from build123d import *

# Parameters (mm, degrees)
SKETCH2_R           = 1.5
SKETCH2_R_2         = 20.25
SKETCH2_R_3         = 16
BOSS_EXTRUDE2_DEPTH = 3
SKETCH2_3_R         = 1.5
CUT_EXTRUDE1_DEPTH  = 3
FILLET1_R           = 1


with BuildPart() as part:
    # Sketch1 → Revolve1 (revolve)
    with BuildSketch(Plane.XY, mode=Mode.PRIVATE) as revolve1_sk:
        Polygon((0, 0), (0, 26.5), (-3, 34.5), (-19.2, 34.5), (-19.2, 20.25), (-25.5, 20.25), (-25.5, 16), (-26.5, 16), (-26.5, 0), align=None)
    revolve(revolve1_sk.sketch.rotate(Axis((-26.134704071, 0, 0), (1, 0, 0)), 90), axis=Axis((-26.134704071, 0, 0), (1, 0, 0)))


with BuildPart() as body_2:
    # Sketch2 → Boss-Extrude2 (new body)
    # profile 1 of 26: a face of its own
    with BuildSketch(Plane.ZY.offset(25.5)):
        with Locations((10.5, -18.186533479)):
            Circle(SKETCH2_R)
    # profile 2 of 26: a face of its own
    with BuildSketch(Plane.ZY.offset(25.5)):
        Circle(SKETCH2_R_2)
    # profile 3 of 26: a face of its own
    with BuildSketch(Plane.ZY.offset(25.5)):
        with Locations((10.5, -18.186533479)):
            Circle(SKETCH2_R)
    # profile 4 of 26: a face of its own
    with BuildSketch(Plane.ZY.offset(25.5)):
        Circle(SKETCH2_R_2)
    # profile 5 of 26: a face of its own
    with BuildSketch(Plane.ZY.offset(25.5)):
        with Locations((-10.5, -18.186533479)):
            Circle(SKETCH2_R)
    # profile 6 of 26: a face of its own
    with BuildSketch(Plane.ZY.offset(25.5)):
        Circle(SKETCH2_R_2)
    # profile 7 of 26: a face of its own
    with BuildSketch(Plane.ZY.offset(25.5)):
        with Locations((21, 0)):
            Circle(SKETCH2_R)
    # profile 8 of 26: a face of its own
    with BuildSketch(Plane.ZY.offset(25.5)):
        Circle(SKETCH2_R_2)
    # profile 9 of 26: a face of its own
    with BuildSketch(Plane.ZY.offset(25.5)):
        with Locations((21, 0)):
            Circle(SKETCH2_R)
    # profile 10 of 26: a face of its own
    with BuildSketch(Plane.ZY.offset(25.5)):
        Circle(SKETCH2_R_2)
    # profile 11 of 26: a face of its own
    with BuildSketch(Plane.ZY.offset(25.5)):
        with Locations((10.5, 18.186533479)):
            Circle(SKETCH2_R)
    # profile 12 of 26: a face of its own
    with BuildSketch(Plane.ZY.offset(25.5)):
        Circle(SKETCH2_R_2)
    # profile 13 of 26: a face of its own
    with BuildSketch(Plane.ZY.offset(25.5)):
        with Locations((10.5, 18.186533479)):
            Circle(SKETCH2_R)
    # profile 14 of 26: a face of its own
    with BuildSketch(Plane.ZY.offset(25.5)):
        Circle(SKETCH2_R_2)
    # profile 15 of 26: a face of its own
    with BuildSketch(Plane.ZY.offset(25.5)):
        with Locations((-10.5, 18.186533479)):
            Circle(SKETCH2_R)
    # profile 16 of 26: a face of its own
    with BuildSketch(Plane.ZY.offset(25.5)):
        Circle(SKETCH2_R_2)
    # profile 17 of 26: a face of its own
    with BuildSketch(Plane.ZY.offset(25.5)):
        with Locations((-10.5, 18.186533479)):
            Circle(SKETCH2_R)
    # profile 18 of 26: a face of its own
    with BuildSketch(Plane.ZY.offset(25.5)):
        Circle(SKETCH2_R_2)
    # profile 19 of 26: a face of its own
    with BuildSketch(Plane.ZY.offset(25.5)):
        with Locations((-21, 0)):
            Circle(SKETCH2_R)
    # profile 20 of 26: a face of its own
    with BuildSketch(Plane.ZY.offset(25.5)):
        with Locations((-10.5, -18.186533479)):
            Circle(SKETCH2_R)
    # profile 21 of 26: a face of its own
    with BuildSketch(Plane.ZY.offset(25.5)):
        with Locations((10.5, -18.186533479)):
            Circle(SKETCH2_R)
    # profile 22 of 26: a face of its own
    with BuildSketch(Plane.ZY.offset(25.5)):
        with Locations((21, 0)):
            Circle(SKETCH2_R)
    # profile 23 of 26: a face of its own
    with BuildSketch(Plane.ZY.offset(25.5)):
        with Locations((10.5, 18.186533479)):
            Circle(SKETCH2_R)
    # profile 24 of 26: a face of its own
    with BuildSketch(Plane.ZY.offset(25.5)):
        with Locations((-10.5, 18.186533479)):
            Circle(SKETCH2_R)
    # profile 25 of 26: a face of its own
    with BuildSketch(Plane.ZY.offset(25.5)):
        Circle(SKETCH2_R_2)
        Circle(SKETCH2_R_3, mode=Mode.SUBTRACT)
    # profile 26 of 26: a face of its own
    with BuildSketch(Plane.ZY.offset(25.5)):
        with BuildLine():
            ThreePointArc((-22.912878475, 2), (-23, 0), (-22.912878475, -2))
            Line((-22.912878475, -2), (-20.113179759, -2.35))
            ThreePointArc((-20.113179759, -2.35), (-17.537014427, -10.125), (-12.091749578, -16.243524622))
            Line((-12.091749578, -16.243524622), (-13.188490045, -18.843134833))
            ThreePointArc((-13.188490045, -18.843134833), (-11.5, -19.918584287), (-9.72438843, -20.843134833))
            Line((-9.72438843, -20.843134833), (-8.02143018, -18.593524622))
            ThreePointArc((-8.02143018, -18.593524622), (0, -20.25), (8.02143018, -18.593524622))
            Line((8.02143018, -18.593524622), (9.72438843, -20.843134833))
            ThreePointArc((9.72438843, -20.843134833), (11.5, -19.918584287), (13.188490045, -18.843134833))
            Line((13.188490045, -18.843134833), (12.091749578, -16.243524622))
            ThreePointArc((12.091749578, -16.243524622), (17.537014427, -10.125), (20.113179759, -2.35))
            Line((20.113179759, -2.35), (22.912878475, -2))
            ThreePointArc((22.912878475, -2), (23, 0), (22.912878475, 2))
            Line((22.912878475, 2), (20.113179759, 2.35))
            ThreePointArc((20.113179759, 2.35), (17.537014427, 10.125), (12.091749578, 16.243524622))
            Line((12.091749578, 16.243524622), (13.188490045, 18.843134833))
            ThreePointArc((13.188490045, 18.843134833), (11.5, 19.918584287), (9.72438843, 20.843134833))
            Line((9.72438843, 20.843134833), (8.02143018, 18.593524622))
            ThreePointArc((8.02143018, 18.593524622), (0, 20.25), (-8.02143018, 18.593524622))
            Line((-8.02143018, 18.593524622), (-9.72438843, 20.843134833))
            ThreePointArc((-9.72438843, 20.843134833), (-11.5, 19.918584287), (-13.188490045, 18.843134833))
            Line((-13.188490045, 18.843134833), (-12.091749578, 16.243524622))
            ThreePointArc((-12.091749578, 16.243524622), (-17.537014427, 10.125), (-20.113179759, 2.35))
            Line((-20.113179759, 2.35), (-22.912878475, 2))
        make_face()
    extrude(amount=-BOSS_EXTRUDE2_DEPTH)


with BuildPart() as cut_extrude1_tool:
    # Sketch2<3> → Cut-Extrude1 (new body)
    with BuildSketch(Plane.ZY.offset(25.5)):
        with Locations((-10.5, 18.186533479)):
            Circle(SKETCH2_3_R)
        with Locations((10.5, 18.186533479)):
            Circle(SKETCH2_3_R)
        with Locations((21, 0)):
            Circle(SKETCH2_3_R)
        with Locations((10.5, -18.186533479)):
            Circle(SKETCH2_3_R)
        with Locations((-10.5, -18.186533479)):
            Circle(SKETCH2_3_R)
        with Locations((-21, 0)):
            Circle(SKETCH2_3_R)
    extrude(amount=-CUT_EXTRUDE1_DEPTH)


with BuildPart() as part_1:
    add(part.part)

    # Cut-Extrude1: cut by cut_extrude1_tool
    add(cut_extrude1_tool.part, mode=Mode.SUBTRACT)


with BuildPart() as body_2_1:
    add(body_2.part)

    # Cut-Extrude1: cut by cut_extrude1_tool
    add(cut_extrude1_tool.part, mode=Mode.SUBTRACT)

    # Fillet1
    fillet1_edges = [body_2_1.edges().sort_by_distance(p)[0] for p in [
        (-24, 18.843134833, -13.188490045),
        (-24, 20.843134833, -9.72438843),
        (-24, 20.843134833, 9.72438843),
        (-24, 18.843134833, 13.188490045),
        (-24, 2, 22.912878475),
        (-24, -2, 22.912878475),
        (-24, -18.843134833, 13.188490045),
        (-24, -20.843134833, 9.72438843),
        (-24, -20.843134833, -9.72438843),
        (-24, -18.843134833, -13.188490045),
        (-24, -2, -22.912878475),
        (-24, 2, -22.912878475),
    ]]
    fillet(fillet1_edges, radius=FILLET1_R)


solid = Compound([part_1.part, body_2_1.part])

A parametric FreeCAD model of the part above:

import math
import FreeCAD as App
import Part
import Sketcher

V = App.Vector


def edges_at(feature, points):
    """Names of the edges that pass closest to the given points."""
    edges = feature.Shape.Edges
    near = lambda p: min(range(len(edges)), key=lambda i: edges[i].distToShape(Part.Vertex(*p))[0])
    return sorted({f"Edge{near(p) + 1}" for p in points})


def add_polygon(sketch, points):
    """Adds a closed chain of lines whose ends are joined by coincident constraints."""
    first, n = sketch.GeometryCount, len(points)
    for a, b in zip(points, points[1:] + points[:1]):
        sketch.addGeometry(Part.LineSegment(App.Vector(*a, 0), App.Vector(*b, 0)), False)
    for i in range(n):
        sketch.addConstraint(Sketcher.Constraint("Coincident", first + i, 2, first + (i + 1) % n, 1))

doc = App.newDocument("Part")
body = doc.addObject("PartDesign::Body", "Body")

sketch1 = body.newObject("Sketcher::SketchObject", "Sketch")
sketch1.AttachmentSupport = (doc.getObject("XY_Plane"), [""])
sketch1.MapMode = "FlatFace"
add_polygon(sketch1, [(0, 0), (0, 26.5), (-3, 34.5), (-19.2, 34.5), (-19.2, 20.2), (-25.5, 20.2), (-25.5, 16), (-26.5, 16), (-26.5, 0)])
sketch1.addConstraint(Sketcher.Constraint("Vertical", 0))
sketch1.addConstraint(Sketcher.Constraint("Horizontal", 2))
sketch1.addConstraint(Sketcher.Constraint("Vertical", 3))
sketch1.addConstraint(Sketcher.Constraint("Horizontal", 4))
sketch1.addConstraint(Sketcher.Constraint("Vertical", 5))
sketch1.addConstraint(Sketcher.Constraint("Horizontal", 6))
sketch1.addConstraint(Sketcher.Constraint("Vertical", 7))
sketch1.addConstraint(Sketcher.Constraint("Horizontal", 8))
sketch1.addConstraint(Sketcher.Constraint("Coincident", 8, 2, -1, 1))
sketch1.addConstraint(Sketcher.Constraint("Equal", 8, 0))
sketch1.addConstraint(Sketcher.Constraint("DistanceX", 6, 2, 6, 1, 1.0))
sketch1.addConstraint(Sketcher.Constraint("DistanceY", 7, 2, 7, 1, 16.0))
sketch1.addConstraint(Sketcher.Constraint("DistanceX", 2, 2, 2, 1, 16.2))
sketch1.addConstraint(Sketcher.Constraint("DistanceX", 4, 2, 4, 1, 6.3))
sketch1.addConstraint(Sketcher.Constraint("DistanceX", 8, 1, 8, 2, 26.5))
sketch1.addConstraint(Sketcher.Constraint("DistanceY", 0, 2, 1, 2, 8.0))
sketch1.addConstraint(Sketcher.Constraint("DistanceY", 3, 2, 3, 1, 14.25))
revolution = body.newObject("PartDesign::Revolution", "Revolution")
revolution.Profile = sketch1
revolution.ReferenceAxis = (sketch1, ["H_Axis"])
revolution.Angle = 360
body2 = doc.addObject("PartDesign::Body", "Body001")

sketch2 = body2.newObject("Sketcher::SketchObject", "Sketch001")
sketch2.AttachmentSupport = (doc.getObject("YZ_Plane001"), [""])
sketch2.MapMode = "FlatFace"
sketch2.AttachmentOffset = App.Placement(V(0, 0, -25.5), App.Rotation())
sketch2.addGeometry(Part.LineSegment(V(-18.6, 8, 0), V(-20.8, 9.7, 0)), False)
sketch2.addGeometry(Part.ArcOfCircle(Part.Circle(V(0, 0, 0), V(0, 0, 1), 23), math.radians(145.01), math.radians(154.99)), False)
sketch2.addGeometry(Part.LineSegment(V(-18.8, 13.2, 0), V(-16.2, 12.1, 0)), False)
sketch2.addGeometry(Part.ArcOfCircle(Part.Circle(V(0, 0, 0), V(0, 0, 1), 20.2), math.radians(97), math.radians(143)), False)
sketch2.addGeometry(Part.LineSegment(V(-2.4, 20.1, 0), V(-2, 22.9, 0)), False)
sketch2.addGeometry(Part.ArcOfCircle(Part.Circle(V(0, 0, 0), V(0, 0, 1), 23), math.radians(85.01), math.radians(94.99)), False)
sketch2.addGeometry(Part.LineSegment(V(2, 22.9, 0), V(2.4, 20.1, 0)), False)
sketch2.addGeometry(Part.ArcOfCircle(Part.Circle(V(0, 0, 0), V(0, 0, 1), 20.2), math.radians(37), math.radians(83)), False)
sketch2.addGeometry(Part.LineSegment(V(16.2, 12.1, 0), V(18.8, 13.2, 0)), False)
sketch2.addGeometry(Part.ArcOfCircle(Part.Circle(V(0, 0, 0), V(0, 0, 1), 23), math.radians(25.01), math.radians(34.99)), False)
sketch2.addGeometry(Part.LineSegment(V(20.8, 9.7, 0), V(18.6, 8, 0)), False)
sketch2.addGeometry(Part.ArcOfCircle(Part.Circle(V(0, 0, 0), V(0, 0, 1), 20.2), math.radians(-23), math.radians(23)), False)
sketch2.addGeometry(Part.LineSegment(V(18.6, -8, 0), V(20.8, -9.7, 0)), False)
sketch2.addGeometry(Part.ArcOfCircle(Part.Circle(V(0, 0, 0), V(0, 0, 1), 23), math.radians(-34.99), math.radians(-25.01)), False)
sketch2.addGeometry(Part.LineSegment(V(18.8, -13.2, 0), V(16.2, -12.1, 0)), False)
sketch2.addGeometry(Part.ArcOfCircle(Part.Circle(V(0, 0, 0), V(0, 0, 1), 20.2), math.radians(-83), math.radians(-37)), False)
sketch2.addGeometry(Part.LineSegment(V(2.4, -20.1, 0), V(2, -22.9, 0)), False)
sketch2.addGeometry(Part.ArcOfCircle(Part.Circle(V(0, 0, 0), V(0, 0, 1), 23), math.radians(-94.99), math.radians(-85.01)), False)
sketch2.addGeometry(Part.LineSegment(V(-2, -22.9, 0), V(-2.4, -20.1, 0)), False)
sketch2.addGeometry(Part.ArcOfCircle(Part.Circle(V(0, 0, 0), V(0, 0, 1), 20.2), math.radians(-143), math.radians(-97)), False)
sketch2.addGeometry(Part.LineSegment(V(-16.2, -12.1, 0), V(-18.8, -13.2, 0)), False)
sketch2.addGeometry(Part.ArcOfCircle(Part.Circle(V(0, 0, 0), V(0, 0, 1), 23), math.radians(-154.99), math.radians(-145.01)), False)
sketch2.addGeometry(Part.LineSegment(V(-20.8, -9.7, 0), V(-18.6, -8, 0)), False)
sketch2.addGeometry(Part.ArcOfCircle(Part.Circle(V(0, 0, 0), V(0, 0, 1), 20.2), math.radians(157), math.radians(203)), False)
sketch2.addConstraint(Sketcher.Constraint("Coincident", 0, 2, 1, 2))
sketch2.addConstraint(Sketcher.Constraint("Coincident", 1, 1, 2, 1))
sketch2.addConstraint(Sketcher.Constraint("Coincident", 2, 2, 3, 2))
sketch2.addConstraint(Sketcher.Constraint("Coincident", 3, 1, 4, 1))
sketch2.addConstraint(Sketcher.Constraint("Coincident", 4, 2, 5, 2))
sketch2.addConstraint(Sketcher.Constraint("Coincident", 5, 1, 6, 1))
sketch2.addConstraint(Sketcher.Constraint("Coincident", 6, 2, 7, 2))
sketch2.addConstraint(Sketcher.Constraint("Coincident", 7, 1, 8, 1))
sketch2.addConstraint(Sketcher.Constraint("Coincident", 8, 2, 9, 2))
sketch2.addConstraint(Sketcher.Constraint("Coincident", 9, 1, 10, 1))
sketch2.addConstraint(Sketcher.Constraint("Coincident", 10, 2, 11, 2))
sketch2.addConstraint(Sketcher.Constraint("Coincident", 11, 1, 12, 1))
sketch2.addConstraint(Sketcher.Constraint("Coincident", 12, 2, 13, 2))
sketch2.addConstraint(Sketcher.Constraint("Coincident", 13, 1, 14, 1))
sketch2.addConstraint(Sketcher.Constraint("Coincident", 14, 2, 15, 2))
sketch2.addConstraint(Sketcher.Constraint("Coincident", 15, 1, 16, 1))
sketch2.addConstraint(Sketcher.Constraint("Coincident", 16, 2, 17, 2))
sketch2.addConstraint(Sketcher.Constraint("Coincident", 17, 1, 18, 1))
sketch2.addConstraint(Sketcher.Constraint("Coincident", 18, 2, 19, 2))
sketch2.addConstraint(Sketcher.Constraint("Coincident", 19, 1, 20, 1))
sketch2.addConstraint(Sketcher.Constraint("Coincident", 20, 2, 21, 2))
sketch2.addConstraint(Sketcher.Constraint("Coincident", 21, 1, 22, 1))
sketch2.addConstraint(Sketcher.Constraint("Coincident", 22, 2, 23, 2))
sketch2.addConstraint(Sketcher.Constraint("Coincident", 23, 1, 0, 1))
sketch2.addConstraint(Sketcher.Constraint("Coincident", 1, 3, -1, 1))
sketch2.addConstraint(Sketcher.Constraint("Coincident", 3, 3, -1, 1))
sketch2.addConstraint(Sketcher.Constraint("Coincident", 5, 3, -1, 1))
sketch2.addConstraint(Sketcher.Constraint("Coincident", 7, 3, -1, 1))
sketch2.addConstraint(Sketcher.Constraint("Coincident", 9, 3, -1, 1))
sketch2.addConstraint(Sketcher.Constraint("Coincident", 11, 3, -1, 1))
sketch2.addConstraint(Sketcher.Constraint("Coincident", 13, 3, -1, 1))
sketch2.addConstraint(Sketcher.Constraint("Coincident", 15, 3, -1, 1))
sketch2.addConstraint(Sketcher.Constraint("Coincident", 17, 3, -1, 1))
sketch2.addConstraint(Sketcher.Constraint("Coincident", 19, 3, -1, 1))
sketch2.addConstraint(Sketcher.Constraint("Coincident", 21, 3, -1, 1))
sketch2.addConstraint(Sketcher.Constraint("Coincident", 23, 3, -1, 1))
sketch2.addConstraint(Sketcher.Constraint("Equal", 1, 5))
sketch2.addConstraint(Sketcher.Constraint("Equal", 3, 7))
sketch2.addConstraint(Sketcher.Constraint("Equal", 5, 9))
sketch2.addConstraint(Sketcher.Constraint("Equal", 7, 11))
sketch2.addConstraint(Sketcher.Constraint("Equal", 9, 13))
sketch2.addConstraint(Sketcher.Constraint("Equal", 11, 15))
sketch2.addConstraint(Sketcher.Constraint("Equal", 13, 17))
sketch2.addConstraint(Sketcher.Constraint("Equal", 15, 19))
sketch2.addConstraint(Sketcher.Constraint("Equal", 17, 21))
sketch2.addConstraint(Sketcher.Constraint("Equal", 19, 23))
sketch2.addConstraint(Sketcher.Constraint("Parallel", 0, 12))
sketch2.addConstraint(Sketcher.Constraint("Parallel", 2, 14))
sketch2.addConstraint(Sketcher.Constraint("Parallel", 4, 16))
sketch2.addConstraint(Sketcher.Constraint("Parallel", 6, 18))
sketch2.addConstraint(Sketcher.Constraint("Parallel", 8, 20))
sketch2.addConstraint(Sketcher.Constraint("Parallel", 10, 22))
sketch2.addConstraint(Sketcher.Constraint("Horizontal", 4, 2, 5, 1))
sketch2.addConstraint(Sketcher.Constraint("Horizontal", 3, 1, 6, 2))
sketch2.addConstraint(Sketcher.Constraint("Horizontal", 2, 2, 7, 1))
sketch2.addConstraint(Sketcher.Constraint("Horizontal", 1, 1, 8, 2))
sketch2.addConstraint(Sketcher.Constraint("Horizontal", 0, 2, 9, 1))
sketch2.addConstraint(Sketcher.Constraint("Horizontal", 16, 2, 17, 1))
sketch2.addConstraint(Sketcher.Constraint("Horizontal", 14, 2, 19, 1))
sketch2.addConstraint(Sketcher.Constraint("Horizontal", 12, 2, 21, 1))
sketch2.addConstraint(Sketcher.Constraint("Horizontal", 11, 1, 22, 2))
sketch2.addConstraint(Sketcher.Constraint("Vertical", 10, 2, 11, 1))
sketch2.addConstraint(Sketcher.Constraint("Vertical", 8, 2, 13, 1))
sketch2.addConstraint(Sketcher.Constraint("Vertical", 6, 2, 15, 1))
sketch2.addConstraint(Sketcher.Constraint("Equal", 0, 2))
sketch2.addConstraint(Sketcher.Constraint("Equal", 2, 4))
sketch2.addConstraint(Sketcher.Constraint("Radius", 1, 23.0))
sketch2.addConstraint(Sketcher.Constraint("Radius", 3, 20.25))
sketch2.addConstraint(Sketcher.Constraint("DistanceX", 4, 2, -1, 1, 2.0))
sketch2.addConstraint(Sketcher.Constraint("DistanceX", 0, 2, 1, 1, 2.0))
sketch2.addConstraint(Sketcher.Constraint("DistanceX", 3, 1, 6, 2, 4.7))
sketch2.addConstraint(Sketcher.Constraint("DistanceY", 0, 2, 1, 1, 3.464102))
pad1 = body2.newObject("PartDesign::Pad", "Pad")
pad1.Profile = sketch2
pad1.Length = 3
body3 = doc.addObject("PartDesign::Body", "Body002")
body3.AllowCompound = True

sketch3 = body3.newObject("Sketcher::SketchObject", "Sketch002")
sketch3.AttachmentSupport = (doc.getObject("YZ_Plane002"), [""])
sketch3.MapMode = "FlatFace"
sketch3.AttachmentOffset = App.Placement(V(0, 0, -25.5), App.Rotation())
sketch3.addGeometry(Part.Circle(V(18.2, -10.5, 0), V(0, 0, 1), 1.5), False)
sketch3.addGeometry(Part.Circle(V(18.2, 10.5, 0), V(0, 0, 1), 1.5), False)
sketch3.addGeometry(Part.Circle(V(0, 21, 0), V(0, 0, 1), 1.5), False)
sketch3.addGeometry(Part.Circle(V(-18.2, 10.5, 0), V(0, 0, 1), 1.5), False)
sketch3.addGeometry(Part.Circle(V(-18.2, -10.5, 0), V(0, 0, 1), 1.5), False)
sketch3.addGeometry(Part.Circle(V(0, -21, 0), V(0, 0, 1), 1.5), False)
sketch3.addConstraint(Sketcher.Constraint("Equal", 0, 1))
sketch3.addConstraint(Sketcher.Constraint("Equal", 1, 2))
sketch3.addConstraint(Sketcher.Constraint("Equal", 2, 3))
sketch3.addConstraint(Sketcher.Constraint("Equal", 3, 4))
sketch3.addConstraint(Sketcher.Constraint("Equal", 4, 5))
sketch3.addConstraint(Sketcher.Constraint("Symmetric", 0, 3, 3, 3, -1, 1))
sketch3.addConstraint(Sketcher.Constraint("Symmetric", 1, 3, 4, 3, -1, 1))
sketch3.addConstraint(Sketcher.Constraint("Symmetric", 2, 3, 5, 3, -1, 1))
sketch3.addConstraint(Sketcher.Constraint("Symmetric", 1, 3, 3, 3, -2))
sketch3.addConstraint(Sketcher.Constraint("PointOnObject", 2, 3, -2))
sketch3.addConstraint(Sketcher.Constraint("Diameter", 0, 3.0))
sketch3.addConstraint(Sketcher.Constraint("DistanceY", -1, 1, 2, 3, 21.0))
sketch3.addConstraint(Sketcher.Constraint("DistanceY", 0, 3, 1, 3, 21.0))
sketch3.addConstraint(Sketcher.Constraint("DistanceX", -1, 1, 0, 3, 18.186533))
pad2 = body3.newObject("PartDesign::Pad", "Pad001")
pad2.Profile = sketch3
pad2.Length = 3
doc.recompute()

body4 = doc.addObject("PartDesign::Body", "Body003")
body4.BaseFeature = body3
boolean = body.newObject("PartDesign::Boolean", "Boolean")
boolean.Type = "Cut"
boolean.addObjects([body4])
doc.recompute()

boolean2 = body2.newObject("PartDesign::Boolean", "Boolean001")
boolean2.Type = "Cut"
boolean2.addObjects([body3])
doc.recompute()

fillet = body2.newObject("PartDesign::Fillet", "Fillet")
fillet.Base = (boolean2, edges_at(boolean2, [
    (-24, 18.843, -13.188),
    (-24, 20.843, -9.724),
    (-24, 20.843, 9.724),
    (-24, 18.843, 13.188),
    (-24, 2, 22.913),
    (-24, -2, 22.913),
    (-24, -18.843, 13.188),
    (-24, -20.843, 9.724),
    (-24, -20.843, -9.724),
    (-24, -18.843, -13.188),
    (-24, -2, -22.913),
    (-24, 2, -22.913),
]))
fillet.Radius = 1

doc.recompute()
